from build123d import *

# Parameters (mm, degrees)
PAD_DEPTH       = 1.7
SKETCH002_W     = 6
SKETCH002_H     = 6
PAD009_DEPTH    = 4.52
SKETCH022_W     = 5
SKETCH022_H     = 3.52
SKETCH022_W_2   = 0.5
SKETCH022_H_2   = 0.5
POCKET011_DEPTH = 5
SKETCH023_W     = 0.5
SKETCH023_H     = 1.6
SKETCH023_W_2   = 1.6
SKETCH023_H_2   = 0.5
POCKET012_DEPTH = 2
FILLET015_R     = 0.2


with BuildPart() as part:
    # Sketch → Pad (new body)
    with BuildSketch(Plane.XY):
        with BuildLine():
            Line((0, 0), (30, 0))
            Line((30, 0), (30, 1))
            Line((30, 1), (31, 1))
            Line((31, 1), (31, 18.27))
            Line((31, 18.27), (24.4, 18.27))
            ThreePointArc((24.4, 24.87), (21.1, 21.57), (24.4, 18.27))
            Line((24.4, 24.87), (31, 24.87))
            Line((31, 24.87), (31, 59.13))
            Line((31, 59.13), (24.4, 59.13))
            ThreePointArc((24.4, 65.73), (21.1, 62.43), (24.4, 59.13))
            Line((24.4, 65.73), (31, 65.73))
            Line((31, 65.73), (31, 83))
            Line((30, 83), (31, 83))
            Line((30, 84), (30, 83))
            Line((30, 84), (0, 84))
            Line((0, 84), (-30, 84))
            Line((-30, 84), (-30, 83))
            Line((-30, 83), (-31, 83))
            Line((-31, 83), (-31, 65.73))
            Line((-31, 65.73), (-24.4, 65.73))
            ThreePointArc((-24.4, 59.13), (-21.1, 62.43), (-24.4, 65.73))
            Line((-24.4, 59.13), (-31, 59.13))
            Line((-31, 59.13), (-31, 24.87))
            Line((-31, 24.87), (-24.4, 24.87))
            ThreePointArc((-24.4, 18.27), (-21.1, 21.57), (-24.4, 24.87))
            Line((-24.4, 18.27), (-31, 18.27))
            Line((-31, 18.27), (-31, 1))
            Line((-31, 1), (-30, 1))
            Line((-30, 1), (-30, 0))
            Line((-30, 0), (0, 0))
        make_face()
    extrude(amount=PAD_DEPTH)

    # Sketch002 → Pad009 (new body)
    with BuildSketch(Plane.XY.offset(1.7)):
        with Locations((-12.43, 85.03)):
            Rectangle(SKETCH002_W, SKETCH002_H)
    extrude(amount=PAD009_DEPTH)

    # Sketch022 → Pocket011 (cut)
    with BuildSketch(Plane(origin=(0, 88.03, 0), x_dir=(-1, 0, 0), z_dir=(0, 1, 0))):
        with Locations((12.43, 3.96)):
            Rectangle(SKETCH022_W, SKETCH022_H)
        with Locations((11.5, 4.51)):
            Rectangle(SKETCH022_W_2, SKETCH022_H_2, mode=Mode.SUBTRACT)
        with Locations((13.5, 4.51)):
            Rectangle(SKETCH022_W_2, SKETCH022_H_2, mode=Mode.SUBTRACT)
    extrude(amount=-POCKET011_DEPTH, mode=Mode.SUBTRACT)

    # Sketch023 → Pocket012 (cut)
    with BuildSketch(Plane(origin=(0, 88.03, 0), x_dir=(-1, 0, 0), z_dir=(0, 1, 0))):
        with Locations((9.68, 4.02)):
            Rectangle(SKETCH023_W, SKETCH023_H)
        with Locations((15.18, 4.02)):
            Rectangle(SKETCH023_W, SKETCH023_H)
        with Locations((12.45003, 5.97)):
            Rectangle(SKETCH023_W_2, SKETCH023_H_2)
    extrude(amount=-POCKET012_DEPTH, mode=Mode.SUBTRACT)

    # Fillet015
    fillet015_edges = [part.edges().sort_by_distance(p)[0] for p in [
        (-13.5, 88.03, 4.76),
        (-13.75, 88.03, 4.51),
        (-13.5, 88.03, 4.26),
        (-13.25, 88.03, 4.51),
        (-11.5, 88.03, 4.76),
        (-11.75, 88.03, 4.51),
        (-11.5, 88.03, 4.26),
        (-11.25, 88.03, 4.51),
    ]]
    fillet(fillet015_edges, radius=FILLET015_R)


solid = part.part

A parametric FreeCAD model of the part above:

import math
import FreeCAD as App
import Part
import Sketcher

V = App.Vector


def edges_at(feature, points):
    """Names of the edges that pass closest to the given points."""
    edges = feature.Shape.Edges
    near = lambda p: min(range(len(edges)), key=lambda i: edges[i].distToShape(Part.Vertex(*p))[0])
    return sorted({f"Edge{near(p) + 1}" for p in points})

doc = App.newDocument("Part")
body = doc.addObject("PartDesign::Body", "Body")

sketch1 = body.newObject("Sketcher::SketchObject", "Sketch")
sketch1.AttachmentSupport = (doc.getObject("XY_Plane"), [""])
sketch1.MapMode = "FlatFace"
sketch1.addGeometry([
    Part.LineSegment(V(30, 0, 0), V(30, 1, 0)),
    Part.LineSegment(V(30, 1, 0), V(31, 1, 0)),
    Part.LineSegment(V(31, 1, 0), V(31, 18.3, 0)),
    Part.LineSegment(V(31, 18.3, 0), V(24.4, 18.3, 0)),
    Part.ArcOfCircle(Part.Circle(V(24.4, 21.6, 0), V(0, 0, 1), 3.3), math.radians(90), math.radians(270)),
    Part.LineSegment(V(24.4, 24.9, 0), V(31, 24.9, 0)),
    Part.LineSegment(V(31, 24.9, 0), V(31, 59.1, 0)),
    Part.LineSegment(V(31, 59.1, 0), V(24.4, 59.1, 0)),
    Part.ArcOfCircle(Part.Circle(V(24.4, 62.4, 0), V(0, 0, 1), 3.3), math.radians(90), math.radians(270)),
    Part.LineSegment(V(24.4, 65.7, 0), V(31, 65.7, 0)),
    Part.LineSegment(V(31, 65.7, 0), V(31, 83, 0)),
    Part.LineSegment(V(31, 83, 0), V(30, 83, 0)),
    Part.LineSegment(V(30, 83, 0), V(30, 84, 0)),
    Part.LineSegment(V(30, 84, 0), V(-30, 84, 0)),
    Part.LineSegment(V(-30, 84, 0), V(-30, 83, 0)),
    Part.LineSegment(V(-30, 83, 0), V(-31, 83, 0)),
    Part.LineSegment(V(-31, 83, 0), V(-31, 65.7, 0)),
    Part.LineSegment(V(-31, 65.7, 0), V(-24.4, 65.7, 0)),
    Part.ArcOfCircle(Part.Circle(V(-24.4, 62.4, 0), V(0, 0, 1), 3.3), math.radians(-90), math.radians(90)),
    Part.LineSegment(V(-24.4, 59.1, 0), V(-31, 59.1, 0)),
    Part.LineSegment(V(-31, 59.1, 0), V(-31, 24.9, 0)),
    Part.LineSegment(V(-31, 24.9, 0), V(-24.4, 24.9, 0)),
    Part.ArcOfCircle(Part.Circle(V(-24.4, 21.6, 0), V(0, 0, 1), 3.3), math.radians(-90), math.radians(90)),
    Part.LineSegment(V(-24.4, 18.3, 0), V(-31, 18.3, 0)),
    Part.LineSegment(V(-31, 18.3, 0), V(-31, 1, 0)),
    Part.LineSegment(V(-31, 1, 0), V(-30, 1, 0)),
    Part.LineSegment(V(-30, 1, 0), V(-30, 0, 0)),
    Part.LineSegment(V(-30, 0, 0), V(30, 0, 0)),
], False)
sketch1.addConstraint([
    Sketcher.Constraint("Coincident", 0, 2, 1, 1),
    Sketcher.Constraint("Coincident", 1, 2, 2, 1),
    Sketcher.Constraint("Coincident", 2, 2, 3, 1),
    Sketcher.Constraint("Tangent", 3, 2, 4, 2),
    Sketcher.Constraint("Tangent", 4, 1, 5, 1),
    Sketcher.Constraint("Coincident", 5, 2, 6, 1),
    Sketcher.Constraint("Coincident", 6, 2, 7, 1),
    Sketcher.Constraint("Tangent", 7, 2, 8, 2),
    Sketcher.Constraint("Tangent", 8, 1, 9, 1),
    Sketcher.Constraint("Coincident", 9, 2, 10, 1),
    Sketcher.Constraint("Coincident", 10, 2, 11, 1),
    Sketcher.Constraint("Coincident", 11, 2, 12, 1),
    Sketcher.Constraint("Coincident", 12, 2, 13, 1),
    Sketcher.Constraint("Coincident", 13, 2, 14, 1),
    Sketcher.Constraint("Coincident", 14, 2, 15, 1),
    Sketcher.Constraint("Coincident", 15, 2, 16, 1),
    Sketcher.Constraint("Coincident", 16, 2, 17, 1),
    Sketcher.Constraint("Tangent", 17, 2, 18, 2),
    Sketcher.Constraint("Tangent", 18, 1, 19, 1),
    Sketcher.Constraint("Coincident", 19, 2, 20, 1),
    Sketcher.Constraint("Coincident", 20, 2, 21, 1),
    Sketcher.Constraint("Tangent", 21, 2, 22, 2),
    Sketcher.Constraint("Tangent", 22, 1, 23, 1),
    Sketcher.Constraint("Coincident", 23, 2, 24, 1),
    Sketcher.Constraint("Coincident", 24, 2, 25, 1),
    Sketcher.Constraint("Coincident", 25, 2, 26, 1),
    Sketcher.Constraint("Coincident", 26, 2, 27, 1),
    Sketcher.Constraint("Coincident", 27, 2, 0, 1),
    Sketcher.Constraint("Vertical", 0),
    Sketcher.Constraint("Horizontal", 1),
    Sketcher.Constraint("Vertical", 2),
    Sketcher.Constraint("Horizontal", 3),
    Sketcher.Constraint("Horizontal", 5),
    Sketcher.Constraint("Vertical", 6),
    Sketcher.Constraint("Horizontal", 7),
    Sketcher.Constraint("Horizontal", 9),
    Sketcher.Constraint("Vertical", 10),
    Sketcher.Constraint("Horizontal", 11),
    Sketcher.Constraint("Vertical", 12),
    Sketcher.Constraint("Horizontal", 13),
    Sketcher.Constraint("Vertical", 14),
    Sketcher.Constraint("Horizontal", 15),
    Sketcher.Constraint("Vertical", 16),
    Sketcher.Constraint("Horizontal", 17),
    Sketcher.Constraint("Horizontal", 19),
    Sketcher.Constraint("Vertical", 20),
    Sketcher.Constraint("Horizontal", 21),
    Sketcher.Constraint("Horizontal", 23),
    Sketcher.Constraint("Vertical", 24),
    Sketcher.Constraint("Horizontal", 25),
    Sketcher.Constraint("Vertical", 26),
    Sketcher.Constraint("Horizontal", 27),
    Sketcher.Constraint("Equal", 4, 8),
    Sketcher.Constraint("Equal", 8, 18),
    Sketcher.Constraint("Equal", 18, 22),
    Sketcher.Constraint("Symmetric", 26, 2, 27, 2, -1, 1),
    Sketcher.Constraint("Symmetric", 8, 3, 18, 3, -2),
    Sketcher.Constraint("Symmetric", 4, 3, 22, 3, -2),
    Sketcher.Constraint("Symmetric", 11, 2, 14, 2, -2),
    Sketcher.Constraint("Symmetric", 1, 2, 24, 2, -2),
    Sketcher.Constraint("Vertical", 4, 3, 8, 3),
    Sketcher.Constraint("Vertical", 2, 2, 5, 2),
    Sketcher.Constraint("Vertical", 6, 2, 9, 2),
    Sketcher.Constraint("Vertical", 0, 2, 11, 2),
    Sketcher.Constraint("Vertical", 16, 2, 19, 2),
    Sketcher.Constraint("Vertical", 20, 2, 23, 2),
    Sketcher.Constraint("Equal", 25, 0),
    Sketcher.Constraint("Equal", 2, 10),
    Sketcher.Constraint("Equal", 0, 12),
    Sketcher.Constraint("Radius", 4, 3.3),
    Sketcher.Constraint("DistanceX", 1, 1, 1, 2, 1.0),
    Sketcher.Constraint("DistanceX", 13, 2, 13, 1, 60.0),
    Sketcher.Constraint("DistanceX", 3, 2, 3, 1, 6.6),
    Sketcher.Constraint("DistanceY", -1, 1, 10, 2, 83.0),
    Sketcher.Constraint("DistanceY", 2, 1, 2, 2, 17.27),
])
pad1 = body.newObject("PartDesign::Pad", "Pad")
pad1.Profile = sketch1
pad1.Length = 1.7

sketch2 = body.newObject("Sketcher::SketchObject", "Sketch001")
sketch2.AttachmentSupport = (doc.getObject("XY_Plane"), [""])
sketch2.MapMode = "FlatFace"
sketch2.AttachmentOffset = App.Placement(V(0, 0, 1.7), App.Rotation())
sketch2.addGeometry([
    Part.LineSegment(V(-15, 88, 0), V(-15, 82, 0)),
    Part.LineSegment(V(-15, 82, 0), V(-9, 82, 0)),
    Part.LineSegment(V(-9, 82, 0), V(-9, 88, 0)),
    Part.LineSegment(V(-9, 88, 0), V(-15, 88, 0)),
], False)
sketch2.addConstraint([
    Sketcher.Constraint("Coincident", 0, 2, 1, 1),
    Sketcher.Constraint("Coincident", 1, 2, 2, 1),
    Sketcher.Constraint("Coincident", 2, 2, 3, 1),
    Sketcher.Constraint("Coincident", 3, 2, 0, 1),
    Sketcher.Constraint("Vertical", 0),
    Sketcher.Constraint("Horizontal", 1),
    Sketcher.Constraint("Vertical", 2),
    Sketcher.Constraint("Horizontal", 3),
    Sketcher.Constraint("Equal", 3, 0),
    Sketcher.Constraint("DistanceX", 1, 1, 1, 2, 6.0),
    Sketcher.Constraint("DistanceX", 0, 2, -1, 1, 15.43),
    Sketcher.Constraint("DistanceY", -1, 1, 0, 2, 82.03),
])
pad2 = body.newObject("PartDesign::Pad", "Pad001")
pad2.Profile = sketch2
pad2.Length = 4.52

sketch3 = body.newObject("Sketcher::SketchObject", "Sketch002")
sketch3.AttachmentSupport = (doc.getObject("XZ_Plane"), [""])
sketch3.MapMode = "FlatFace"
sketch3.AttachmentOffset = App.Placement(V(0, 0, -88.03), App.Rotation())
sketch3.addGeometry([
    Part.LineSegment(V(-9.9, 5.7, 0), V(-9.9, 2.2, 0)),
    Part.LineSegment(V(-9.9, 2.2, 0), V(-14.9, 2.2, 0)),
    Part.LineSegment(V(-14.9, 2.2, 0), V(-14.9, 5.7, 0)),
    Part.LineSegment(V(-14.9, 5.7, 0), V(-9.9, 5.7, 0)),
    Part.LineSegment(V(-11.8, 4.3, 0), V(-11.2, 4.3, 0)),
    Part.LineSegment(V(-11.2, 4.3, 0), V(-11.2, 4.8, 0)),
    Part.LineSegment(V(-11.2, 4.8, 0), V(-11.8, 4.8, 0)),
    Part.LineSegment(V(-11.8, 4.8, 0), V(-11.8, 4.3, 0)),
    Part.LineSegment(V(-13.8, 4.3, 0), V(-13.2, 4.3, 0)),
    Part.LineSegment(V(-13.2, 4.3, 0), V(-13.2, 4.8, 0)),
    Part.LineSegment(V(-13.2, 4.8, 0), V(-13.8, 4.8, 0)),
    Part.LineSegment(V(-13.8, 4.8, 0), V(-13.8, 4.3, 0)),
], False)
sketch3.addConstraint([
    Sketcher.Constraint("Coincident", 0, 2, 1, 1),
    Sketcher.Constraint("Coincident", 1, 2, 2, 1),
    Sketcher.Constraint("Coincident", 2, 2, 3, 1),
    Sketcher.Constraint("Coincident", 3, 2, 0, 1),
    Sketcher.Constraint("Coincident", 4, 2, 5, 1),
    Sketcher.Constraint("Coincident", 5, 2, 6, 1),
    Sketcher.Constraint("Coincident", 6, 2, 7, 1),
    Sketcher.Constraint("Coincident", 7, 2, 4, 1),
    Sketcher.Constraint("Coincident", 8, 2, 9, 1),
    Sketcher.Constraint("Coincident", 9, 2, 10, 1),
    Sketcher.Constraint("Coincident", 10, 2, 11, 1),
    Sketcher.Constraint("Coincident", 11, 2, 8, 1),
    Sketcher.Constraint("Vertical", 0),
    Sketcher.Constraint("Horizontal", 1),
    Sketcher.Constraint("Vertical", 2),
    Sketcher.Constraint("Horizontal", 3),
    Sketcher.Constraint("Horizontal", 4),
    Sketcher.Constraint("Vertical", 5),
    Sketcher.Constraint("Horizontal", 6),
    Sketcher.Constraint("Vertical", 7),
    Sketcher.Constraint("Horizontal", 8),
    Sketcher.Constraint("Vertical", 9),
    Sketcher.Constraint("Horizontal", 10),
    Sketcher.Constraint("Vertical", 11),
    Sketcher.Constraint("Horizontal", 7, 2, 8, 2),
    Sketcher.Constraint("Horizontal", 6, 2, 9, 2),
    Sketcher.Constraint("Equal", 6, 8),
    Sketcher.Constraint("Equal", 10, 5),
    Sketcher.Constraint("DistanceX", 1, 2, 1, 1, 5.0),
    Sketcher.Constraint("DistanceX", 4, 1, 4, 2, 0.5),
    Sketcher.Constraint("DistanceX", 8, 2, 4, 2, 2.0),
    Sketcher.Constraint("DistanceY", 0, 2, 0, 1, 3.52),
    Sketcher.Constraint("DistanceY", -1, 1, 0, 2, 2.2),
    Sketcher.Constraint("DistanceX", 0, 2, -1, 1, 9.93),
    Sketcher.Constraint("DistanceX", 4, 2, -1, 1, 11.25),
    Sketcher.Constraint("DistanceY", -1, 1, 4, 2, 4.26),
])
pocket1 = body.newObject("PartDesign::Pocket", "Pocket")
pocket1.Profile = sketch3
pocket1.Length = 5
pocket1.Reversed = True

sketch4 = body.newObject("Sketcher::SketchObject", "Sketch003")
sketch4.AttachmentSupport = (doc.getObject("XZ_Plane"), [""])
sketch4.MapMode = "FlatFace"
sketch4.AttachmentOffset = App.Placement(V(0, 0, -88.03), App.Rotation())
sketch4.addGeometry([
    Part.LineSegment(V(-9.4, 4.8, 0), V(-9.4, 3.2, 0)),
    Part.LineSegment(V(-9.4, 3.2, 0), V(-9.9, 3.2, 0)),
    Part.LineSegment(V(-9.9, 3.2, 0), V(-9.9, 4.8, 0)),
    Part.LineSegment(V(-9.9, 4.8, 0), V(-9.4, 4.8, 0)),
    Part.LineSegment(V(-14.9, 4.8, 0), V(-14.9, 3.2, 0)),
    Part.LineSegment(V(-14.9, 3.2, 0), V(-15.4, 3.2, 0)),
    Part.LineSegment(V(-15.4, 3.2, 0), V(-15.4, 4.8, 0)),
    Part.LineSegment(V(-15.4, 4.8, 0), V(-14.9, 4.8, 0)),
    Part.LineSegment(V(-11.7, 6.2, 0), V(-11.7, 5.7, 0)),
    Part.LineSegment(V(-11.7, 5.7, 0), V(-13.3, 5.7, 0)),
    Part.LineSegment(V(-13.3, 5.7, 0), V(-13.3, 6.2, 0)),
    Part.LineSegment(V(-13.3, 6.2, 0), V(-11.7, 6.2, 0)),
], False)
sketch4.addConstraint([
    Sketcher.Constraint("Coincident", 0, 2, 1, 1),
    Sketcher.Constraint("Coincident", 1, 2, 2, 1),
    Sketcher.Constraint("Coincident", 2, 2, 3, 1),
    Sketcher.Constraint("Coincident", 3, 2, 0, 1),
    Sketcher.Constraint("Coincident", 4, 2, 5, 1),
    Sketcher.Constraint("Coincident", 5, 2, 6, 1),
    Sketcher.Constraint("Coincident", 6, 2, 7, 1),
    Sketcher.Constraint("Coincident", 7, 2, 4, 1),
    Sketcher.Constraint("Coincident", 8, 2, 9, 1),
    Sketcher.Constraint("Coincident", 9, 2, 10, 1),
    Sketcher.Constraint("Coincident", 10, 2, 11, 1),
    Sketcher.Constraint("Coincident", 11, 2, 8, 1),
    Sketcher.Constraint("Vertical", 0),
    Sketcher.Constraint("Horizontal", 1),
    Sketcher.Constraint("Vertical", 2),
    Sketcher.Constraint("Horizontal", 3),
    Sketcher.Constraint("Vertical", 4),
    Sketcher.Constraint("Horizontal", 5),
    Sketcher.Constraint("Vertical", 6),
    Sketcher.Constraint("Horizontal", 7),
    Sketcher.Constraint("Vertical", 8),
    Sketcher.Constraint("Horizontal", 9),
    Sketcher.Constraint("Vertical", 10),
    Sketcher.Constraint("Horizontal", 11),
    Sketcher.Constraint("Horizontal", 1, 2, 4, 2),
    Sketcher.Constraint("Horizontal", 3, 2, 6, 2),
    Sketcher.Constraint("Equal", 3, 5),
    Sketcher.Constraint("Equal", 11, 0),
    Sketcher.Constraint("Equal", 7, 8),
    Sketcher.Constraint("DistanceX", 1, 2, 1, 1, 0.5),
    Sketcher.Constraint("DistanceX", 9, 2, 9, 1, 1.6),
    Sketcher.Constraint("DistanceX", 4, 2, 1, 2, 5.0),
    Sketcher.Constraint("DistanceY", 4, 2, 10, 2, 3.0),
    Sketcher.Constraint("DistanceX", 0, 2, -1, 1, 9.43),
    Sketcher.Constraint("DistanceY", -1, 1, 0, 2, 3.22),
    Sketcher.Constraint("DistanceX", 8, 2, -1, 1, 11.65003),
])
pocket2 = body.newObject("PartDesign::Pocket", "Pocket001")
pocket2.Profile = sketch4
pocket2.Length = 2
pocket2.Reversed = True
doc.recompute()

fillet = body.newObject("PartDesign::Fillet", "Fillet")
fillet.Base = (pocket2, edges_at(pocket2, [
    (-13.5, 88.03, 4.76),
    (-13.75, 88.03, 4.51),
    (-13.5, 88.03, 4.26),
    (-13.25, 88.03, 4.51),
    (-11.5, 88.03, 4.76),
    (-11.75, 88.03, 4.51),
    (-11.5, 88.03, 4.26),
    (-11.25, 88.03, 4.51),
]))
fillet.Radius = 0.2

doc.recompute()
